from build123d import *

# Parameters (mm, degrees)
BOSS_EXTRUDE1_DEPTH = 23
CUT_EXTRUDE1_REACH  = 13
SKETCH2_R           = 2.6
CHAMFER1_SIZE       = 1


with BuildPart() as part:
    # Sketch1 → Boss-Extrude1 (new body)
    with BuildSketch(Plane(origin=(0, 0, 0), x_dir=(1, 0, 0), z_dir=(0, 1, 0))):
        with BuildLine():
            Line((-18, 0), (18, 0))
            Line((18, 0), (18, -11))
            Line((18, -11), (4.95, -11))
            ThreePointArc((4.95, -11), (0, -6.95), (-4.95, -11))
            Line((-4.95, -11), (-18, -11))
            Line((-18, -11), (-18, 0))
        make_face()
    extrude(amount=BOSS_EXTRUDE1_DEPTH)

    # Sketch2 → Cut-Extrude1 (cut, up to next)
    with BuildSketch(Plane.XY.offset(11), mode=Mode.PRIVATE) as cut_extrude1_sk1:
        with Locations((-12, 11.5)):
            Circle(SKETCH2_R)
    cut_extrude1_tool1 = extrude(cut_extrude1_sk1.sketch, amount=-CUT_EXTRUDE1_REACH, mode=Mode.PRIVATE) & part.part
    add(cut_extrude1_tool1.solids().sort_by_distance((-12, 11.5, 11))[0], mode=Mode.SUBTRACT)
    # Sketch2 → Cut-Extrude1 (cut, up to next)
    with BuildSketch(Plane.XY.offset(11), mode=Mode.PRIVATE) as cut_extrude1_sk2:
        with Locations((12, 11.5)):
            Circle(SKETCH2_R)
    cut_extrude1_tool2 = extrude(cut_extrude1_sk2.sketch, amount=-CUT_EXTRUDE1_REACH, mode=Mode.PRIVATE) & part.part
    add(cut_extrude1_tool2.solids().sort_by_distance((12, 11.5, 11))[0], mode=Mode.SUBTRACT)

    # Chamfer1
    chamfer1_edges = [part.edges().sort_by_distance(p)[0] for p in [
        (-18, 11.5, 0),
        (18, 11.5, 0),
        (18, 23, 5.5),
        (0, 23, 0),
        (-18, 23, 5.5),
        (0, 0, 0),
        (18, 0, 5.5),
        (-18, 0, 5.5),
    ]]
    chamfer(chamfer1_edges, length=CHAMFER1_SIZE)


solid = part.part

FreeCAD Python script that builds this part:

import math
import FreeCAD as App
import Part
import Sketcher
from FreeCAD import Vector


def edges_at(feature, points):
    """Names of the edges that pass closest to the given points."""
    edges = feature.Shape.Edges
    near = lambda p: min(range(len(edges)), key=lambda i: edges[i].distToShape(Part.Vertex(*p))[0])
    return sorted({f"Edge{near(p) + 1}" for p in points})

doc = App.newDocument("Part")
body = doc.addObject("PartDesign::Body", "Body")

# Sketch on XZ plane
sketch1 = body.newObject("Sketcher::SketchObject", "Sketch")
sketch1.AttachmentSupport = (doc.getObject("XZ_Plane"), [""])
sketch1.MapMode = "FlatFace"
sketch1.addGeometry([
    Part.LineSegment(Vector(18, 0, 0), Vector(-18, 0, 0)),  # 0
    Part.LineSegment(Vector(-18, 0, 0), Vector(-18, 11, 0)),  # 1
    Part.LineSegment(Vector(-18, 11, 0), Vector(-4.95, 11, 0)),  # 2
    Part.ArcOfCircle(Part.Circle(Vector(0, 12, 0), Vector(0, 0, 1), 5.05), math.radians(-168.578814), math.radians(-11.421186)),  # 3
    Part.LineSegment(Vector(4.95, 11, 0), Vector(18, 11, 0)),  # 4
    Part.LineSegment(Vector(18, 11, 0), Vector(18, 0, 0)),  # 5
], False)
sketch1.addConstraint([
    Sketcher.Constraint("Coincident", 0, 2, 1, 1),
    Sketcher.Constraint("Coincident", 1, 2, 2, 1),
    Sketcher.Constraint("Coincident", 2, 2, 3, 1),
    Sketcher.Constraint("Coincident", 3, 2, 4, 1),
    Sketcher.Constraint("Coincident", 4, 2, 5, 1),
    Sketcher.Constraint("Coincident", 5, 2, 0, 1),
    Sketcher.Constraint("Horizontal", 0),
    Sketcher.Constraint("Vertical", 1),
    Sketcher.Constraint("Horizontal", 2),
    Sketcher.Constraint("Horizontal", 4),
    Sketcher.Constraint("Vertical", 5),
    Sketcher.Constraint("Symmetric", 0, 2, 5, 2, -1, 1),
    Sketcher.Constraint("Symmetric", 2, 2, 3, 2, -2),
    Sketcher.Constraint("DistanceX", 0, 2, 0, 1, 36.0),
    Sketcher.Constraint("DistanceY", 1, 1, 1, 2, 11.0),
    Sketcher.Constraint("Radius", 3, 5.05),
    Sketcher.Constraint("DistanceY", -1, 1, 3, 3, 12.0),
])
pad1 = body.newObject("PartDesign::Pad", "Pad")
pad1.Profile = sketch1
pad1.Length = 23
pad1.Reversed = True

# Sketch on XY plane
sketch2 = body.newObject("Sketcher::SketchObject", "Sketch001")
sketch2.AttachmentSupport = (doc.getObject("XY_Plane"), [""])
sketch2.MapMode = "FlatFace"
sketch2.AttachmentOffset = App.Placement(Vector(0, 0, 11), App.Rotation())
sketch2.addGeometry(Part.Circle(Vector(-12, 11.5, 0), Vector(0, 0, 1), 2.6), False)
sketch2.addConstraint([
    Sketcher.Constraint("Diameter", 0, 5.2),
    Sketcher.Constraint("DistanceX", 0, 3, -1, 1, 12.0),
    Sketcher.Constraint("DistanceY", -1, 1, 0, 3, 11.5),
])
pocket1 = body.newObject("PartDesign::Pocket", "Pocket")
pocket1.Profile = sketch2
pocket1.Type = "UpToFirst"

# Sketch on XY plane
sketch3 = body.newObject("Sketcher::SketchObject", "Sketch002")
sketch3.AttachmentSupport = (doc.getObject("XY_Plane"), [""])
sketch3.MapMode = "FlatFace"
sketch3.AttachmentOffset = App.Placement(Vector(0, 0, 11), App.Rotation())
sketch3.addGeometry(Part.Circle(Vector(12, 11.5, 0), Vector(0, 0, 1), 2.6), False)
sketch3.addConstraint([
    Sketcher.Constraint("Diameter", 0, 5.2),
    Sketcher.Constraint("DistanceX", -1, 1, 0, 3, 12.0),
    Sketcher.Constraint("DistanceY", -1, 1, 0, 3, 11.5),
])
pocket2 = body.newObject("PartDesign::Pocket", "Pocket001")
pocket2.Profile = sketch3
pocket2.Type = "UpToFirst"
doc.recompute()

chamfer = body.newObject("PartDesign::Chamfer", "Chamfer")
chamfer.Base = (pocket2, edges_at(pocket2, [
    (-18, 11.5, 0),
    (18, 11.5, 0),
    (18, 23, 5.5),
    (0, 23, 0),
    (-18, 23, 5.5),
    (0, 0, 0),
    (18, 0, 5.5),
    (-18, 0, 5.5),
]))
chamfer.Size = 1

doc.recompute()
